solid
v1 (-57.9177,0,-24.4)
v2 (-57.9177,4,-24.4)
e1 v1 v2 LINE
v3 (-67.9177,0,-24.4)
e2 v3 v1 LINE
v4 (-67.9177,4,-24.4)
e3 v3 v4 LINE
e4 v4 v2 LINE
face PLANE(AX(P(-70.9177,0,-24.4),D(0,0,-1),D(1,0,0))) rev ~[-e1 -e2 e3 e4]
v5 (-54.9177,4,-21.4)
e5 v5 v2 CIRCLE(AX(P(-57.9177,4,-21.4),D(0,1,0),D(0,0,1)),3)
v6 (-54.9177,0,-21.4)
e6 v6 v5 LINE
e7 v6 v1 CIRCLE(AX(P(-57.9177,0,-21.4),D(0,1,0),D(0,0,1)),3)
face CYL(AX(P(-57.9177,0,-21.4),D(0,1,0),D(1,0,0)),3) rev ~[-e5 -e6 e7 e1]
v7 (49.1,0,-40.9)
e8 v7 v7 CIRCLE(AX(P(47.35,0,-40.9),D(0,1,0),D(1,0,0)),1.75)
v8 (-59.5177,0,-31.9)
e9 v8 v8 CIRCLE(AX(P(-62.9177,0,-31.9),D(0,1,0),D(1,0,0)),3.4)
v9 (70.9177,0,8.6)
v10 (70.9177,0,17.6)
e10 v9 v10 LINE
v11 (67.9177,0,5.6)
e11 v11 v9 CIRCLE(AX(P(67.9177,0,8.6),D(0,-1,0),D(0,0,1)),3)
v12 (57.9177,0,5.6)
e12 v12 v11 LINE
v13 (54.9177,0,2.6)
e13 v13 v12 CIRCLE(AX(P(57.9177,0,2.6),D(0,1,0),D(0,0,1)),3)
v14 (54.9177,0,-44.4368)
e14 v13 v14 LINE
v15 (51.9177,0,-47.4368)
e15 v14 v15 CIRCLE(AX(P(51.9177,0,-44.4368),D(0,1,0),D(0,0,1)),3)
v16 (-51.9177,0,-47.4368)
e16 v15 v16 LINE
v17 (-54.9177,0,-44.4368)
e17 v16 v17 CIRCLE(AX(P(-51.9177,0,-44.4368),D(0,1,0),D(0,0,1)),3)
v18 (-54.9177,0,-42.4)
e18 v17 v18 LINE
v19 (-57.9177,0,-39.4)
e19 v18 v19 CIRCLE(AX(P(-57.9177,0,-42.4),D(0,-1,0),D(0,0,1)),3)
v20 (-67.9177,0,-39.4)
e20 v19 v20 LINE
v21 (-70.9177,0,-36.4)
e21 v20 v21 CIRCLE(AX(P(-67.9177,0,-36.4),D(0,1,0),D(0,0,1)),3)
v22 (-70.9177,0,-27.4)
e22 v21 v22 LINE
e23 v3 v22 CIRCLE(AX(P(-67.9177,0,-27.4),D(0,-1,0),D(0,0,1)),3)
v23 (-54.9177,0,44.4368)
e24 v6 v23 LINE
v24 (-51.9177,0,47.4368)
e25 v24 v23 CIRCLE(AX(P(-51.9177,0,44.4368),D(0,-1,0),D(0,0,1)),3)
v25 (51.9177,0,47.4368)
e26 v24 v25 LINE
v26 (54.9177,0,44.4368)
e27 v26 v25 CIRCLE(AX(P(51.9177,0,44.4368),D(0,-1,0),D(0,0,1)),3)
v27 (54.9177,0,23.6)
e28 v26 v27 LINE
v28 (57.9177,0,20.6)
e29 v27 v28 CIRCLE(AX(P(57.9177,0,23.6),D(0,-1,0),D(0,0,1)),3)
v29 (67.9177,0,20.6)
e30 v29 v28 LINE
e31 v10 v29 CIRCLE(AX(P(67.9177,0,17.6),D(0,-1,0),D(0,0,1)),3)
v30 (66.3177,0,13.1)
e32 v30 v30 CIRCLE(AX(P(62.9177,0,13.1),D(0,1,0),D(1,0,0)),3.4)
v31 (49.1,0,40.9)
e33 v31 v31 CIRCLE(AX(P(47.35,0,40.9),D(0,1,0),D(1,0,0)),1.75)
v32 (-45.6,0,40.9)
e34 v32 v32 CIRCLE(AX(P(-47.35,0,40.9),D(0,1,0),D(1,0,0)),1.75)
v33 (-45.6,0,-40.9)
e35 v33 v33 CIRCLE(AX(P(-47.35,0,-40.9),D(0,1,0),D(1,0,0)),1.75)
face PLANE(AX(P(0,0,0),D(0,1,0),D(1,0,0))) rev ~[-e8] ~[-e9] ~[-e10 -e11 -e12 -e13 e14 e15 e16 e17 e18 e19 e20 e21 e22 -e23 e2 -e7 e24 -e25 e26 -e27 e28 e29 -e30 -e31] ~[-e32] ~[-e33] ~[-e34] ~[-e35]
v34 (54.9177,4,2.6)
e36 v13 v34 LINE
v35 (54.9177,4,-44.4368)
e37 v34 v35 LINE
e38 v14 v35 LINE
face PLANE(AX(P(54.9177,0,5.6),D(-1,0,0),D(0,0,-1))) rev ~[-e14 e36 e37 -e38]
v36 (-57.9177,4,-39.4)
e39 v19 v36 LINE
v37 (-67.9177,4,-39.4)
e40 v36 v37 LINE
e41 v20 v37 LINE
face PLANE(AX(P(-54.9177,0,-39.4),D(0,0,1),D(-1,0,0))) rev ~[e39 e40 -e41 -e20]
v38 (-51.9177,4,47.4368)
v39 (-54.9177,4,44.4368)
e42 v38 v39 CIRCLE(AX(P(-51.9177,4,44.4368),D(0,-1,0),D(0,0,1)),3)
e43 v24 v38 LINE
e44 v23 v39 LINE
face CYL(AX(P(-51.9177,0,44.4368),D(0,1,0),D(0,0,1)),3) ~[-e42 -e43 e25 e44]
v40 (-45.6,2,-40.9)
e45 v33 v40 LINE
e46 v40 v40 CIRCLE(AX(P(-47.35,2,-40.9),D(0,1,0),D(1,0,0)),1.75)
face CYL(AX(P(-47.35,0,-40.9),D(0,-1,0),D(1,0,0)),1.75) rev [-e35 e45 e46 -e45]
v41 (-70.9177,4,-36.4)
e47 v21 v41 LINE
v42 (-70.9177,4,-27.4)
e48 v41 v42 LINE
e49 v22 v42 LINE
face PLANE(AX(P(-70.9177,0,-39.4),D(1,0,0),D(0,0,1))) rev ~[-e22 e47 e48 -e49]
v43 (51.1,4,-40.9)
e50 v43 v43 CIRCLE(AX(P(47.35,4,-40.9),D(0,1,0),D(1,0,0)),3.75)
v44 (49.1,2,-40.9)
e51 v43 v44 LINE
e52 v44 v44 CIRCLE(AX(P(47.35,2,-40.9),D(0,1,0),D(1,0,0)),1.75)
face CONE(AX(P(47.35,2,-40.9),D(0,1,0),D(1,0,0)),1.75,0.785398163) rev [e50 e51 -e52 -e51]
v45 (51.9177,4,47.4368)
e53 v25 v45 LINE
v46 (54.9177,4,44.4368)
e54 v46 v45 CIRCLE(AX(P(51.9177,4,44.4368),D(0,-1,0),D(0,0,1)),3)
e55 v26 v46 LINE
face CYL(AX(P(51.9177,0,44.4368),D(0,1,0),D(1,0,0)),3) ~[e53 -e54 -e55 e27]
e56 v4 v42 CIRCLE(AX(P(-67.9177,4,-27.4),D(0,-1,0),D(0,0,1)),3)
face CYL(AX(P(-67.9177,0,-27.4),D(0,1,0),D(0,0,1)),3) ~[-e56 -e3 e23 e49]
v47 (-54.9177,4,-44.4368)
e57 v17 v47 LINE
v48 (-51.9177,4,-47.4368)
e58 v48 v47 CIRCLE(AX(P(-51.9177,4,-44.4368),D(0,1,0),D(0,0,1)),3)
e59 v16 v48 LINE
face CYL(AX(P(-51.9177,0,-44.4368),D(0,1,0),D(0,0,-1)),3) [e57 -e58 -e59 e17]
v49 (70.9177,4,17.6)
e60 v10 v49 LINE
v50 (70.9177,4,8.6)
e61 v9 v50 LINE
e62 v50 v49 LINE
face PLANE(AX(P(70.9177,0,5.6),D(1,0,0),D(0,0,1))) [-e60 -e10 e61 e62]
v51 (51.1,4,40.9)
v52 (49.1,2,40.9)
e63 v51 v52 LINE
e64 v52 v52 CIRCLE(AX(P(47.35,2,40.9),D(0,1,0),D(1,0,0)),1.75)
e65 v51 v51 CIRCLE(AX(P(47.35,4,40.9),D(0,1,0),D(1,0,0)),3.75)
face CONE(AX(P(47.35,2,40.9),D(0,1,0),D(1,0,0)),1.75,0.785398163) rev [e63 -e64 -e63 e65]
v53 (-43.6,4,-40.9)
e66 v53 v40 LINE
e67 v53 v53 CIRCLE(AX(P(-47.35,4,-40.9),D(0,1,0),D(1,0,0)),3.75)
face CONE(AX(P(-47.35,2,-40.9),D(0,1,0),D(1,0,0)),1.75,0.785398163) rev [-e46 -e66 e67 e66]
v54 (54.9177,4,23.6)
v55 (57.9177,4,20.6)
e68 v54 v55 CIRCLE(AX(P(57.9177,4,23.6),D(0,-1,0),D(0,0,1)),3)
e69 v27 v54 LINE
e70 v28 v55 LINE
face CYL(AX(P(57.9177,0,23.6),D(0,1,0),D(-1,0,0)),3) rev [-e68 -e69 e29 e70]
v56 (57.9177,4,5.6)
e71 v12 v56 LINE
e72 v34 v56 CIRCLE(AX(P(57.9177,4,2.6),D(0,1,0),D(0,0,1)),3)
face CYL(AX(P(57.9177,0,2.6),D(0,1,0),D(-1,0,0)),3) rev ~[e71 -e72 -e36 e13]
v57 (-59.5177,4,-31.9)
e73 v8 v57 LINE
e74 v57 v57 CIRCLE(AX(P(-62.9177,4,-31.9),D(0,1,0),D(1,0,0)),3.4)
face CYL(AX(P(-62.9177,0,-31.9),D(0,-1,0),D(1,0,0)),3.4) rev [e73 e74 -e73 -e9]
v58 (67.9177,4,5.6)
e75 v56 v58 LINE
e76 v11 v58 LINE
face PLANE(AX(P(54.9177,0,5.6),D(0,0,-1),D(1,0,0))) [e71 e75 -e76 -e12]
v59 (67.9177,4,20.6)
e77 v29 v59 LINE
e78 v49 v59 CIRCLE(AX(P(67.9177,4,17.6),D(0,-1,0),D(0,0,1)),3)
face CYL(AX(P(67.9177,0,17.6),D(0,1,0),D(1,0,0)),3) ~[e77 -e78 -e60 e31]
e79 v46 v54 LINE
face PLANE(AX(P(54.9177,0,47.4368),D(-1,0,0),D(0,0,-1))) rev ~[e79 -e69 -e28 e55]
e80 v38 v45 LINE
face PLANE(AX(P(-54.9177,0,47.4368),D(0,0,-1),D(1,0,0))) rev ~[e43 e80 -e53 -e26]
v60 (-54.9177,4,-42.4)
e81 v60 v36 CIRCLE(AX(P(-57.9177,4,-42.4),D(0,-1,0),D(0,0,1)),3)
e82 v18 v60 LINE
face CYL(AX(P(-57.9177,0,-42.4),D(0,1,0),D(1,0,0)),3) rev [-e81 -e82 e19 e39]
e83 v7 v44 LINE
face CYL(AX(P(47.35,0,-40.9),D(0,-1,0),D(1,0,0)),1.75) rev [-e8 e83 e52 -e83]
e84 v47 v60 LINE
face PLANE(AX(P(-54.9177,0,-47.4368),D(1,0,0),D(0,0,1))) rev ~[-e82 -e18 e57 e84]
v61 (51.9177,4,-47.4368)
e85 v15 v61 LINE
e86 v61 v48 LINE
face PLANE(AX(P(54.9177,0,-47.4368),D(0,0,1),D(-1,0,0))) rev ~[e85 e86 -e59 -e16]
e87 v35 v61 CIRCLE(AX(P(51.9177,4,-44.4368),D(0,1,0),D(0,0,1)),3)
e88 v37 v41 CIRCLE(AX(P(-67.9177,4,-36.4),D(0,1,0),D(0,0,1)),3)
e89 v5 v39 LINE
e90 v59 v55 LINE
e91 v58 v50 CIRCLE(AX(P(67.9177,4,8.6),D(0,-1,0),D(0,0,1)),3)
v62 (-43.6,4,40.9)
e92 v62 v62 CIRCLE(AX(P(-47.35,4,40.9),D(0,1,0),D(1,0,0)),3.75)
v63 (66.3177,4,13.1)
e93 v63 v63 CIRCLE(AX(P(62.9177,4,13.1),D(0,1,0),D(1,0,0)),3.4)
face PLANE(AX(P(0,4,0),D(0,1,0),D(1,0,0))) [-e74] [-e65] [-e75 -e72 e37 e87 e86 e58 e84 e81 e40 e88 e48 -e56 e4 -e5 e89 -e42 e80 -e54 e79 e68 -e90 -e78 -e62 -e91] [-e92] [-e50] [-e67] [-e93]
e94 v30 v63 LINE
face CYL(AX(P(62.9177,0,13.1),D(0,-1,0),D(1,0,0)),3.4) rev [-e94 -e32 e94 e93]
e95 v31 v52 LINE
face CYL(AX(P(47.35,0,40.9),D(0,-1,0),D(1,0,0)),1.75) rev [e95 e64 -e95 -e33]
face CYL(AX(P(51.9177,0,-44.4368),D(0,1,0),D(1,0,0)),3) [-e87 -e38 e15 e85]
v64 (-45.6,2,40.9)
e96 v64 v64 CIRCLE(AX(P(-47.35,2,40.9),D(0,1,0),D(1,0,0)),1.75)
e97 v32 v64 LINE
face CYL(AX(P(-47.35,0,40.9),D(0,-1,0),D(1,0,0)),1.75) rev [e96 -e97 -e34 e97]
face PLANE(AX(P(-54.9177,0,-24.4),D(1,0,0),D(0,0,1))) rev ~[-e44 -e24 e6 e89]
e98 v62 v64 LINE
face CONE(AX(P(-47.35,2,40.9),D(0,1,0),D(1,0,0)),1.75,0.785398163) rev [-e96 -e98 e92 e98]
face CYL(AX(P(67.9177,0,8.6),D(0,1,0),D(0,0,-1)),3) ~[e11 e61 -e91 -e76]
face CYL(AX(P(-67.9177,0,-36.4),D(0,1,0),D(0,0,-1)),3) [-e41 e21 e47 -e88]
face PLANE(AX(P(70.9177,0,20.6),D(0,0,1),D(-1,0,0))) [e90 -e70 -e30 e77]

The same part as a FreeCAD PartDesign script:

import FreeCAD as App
import Part
import Sketcher


def edges_at(feature, points):
    """Names of the edges that pass closest to the given points."""
    edges = feature.Shape.Edges
    near = lambda p: min(range(len(edges)), key=lambda i: edges[i].distToShape(Part.Vertex(*p))[0])
    return sorted({f"Edge{near(p) + 1}" for p in points})

doc = App.newDocument("Part")
body = doc.addObject("PartDesign::Body", "Body")

# Sketch on XZ plane
sketch1 = body.newObject("Sketcher::SketchObject", "Sketch")
sketch1.AttachmentSupport = (doc.getObject("XZ_Plane"), [""])
sketch1.MapMode = "FlatFace"
sketch1.addGeometry(Part.LineSegment(App.Vector(54.9, 5.6, 0), App.Vector(54.9, -47.4, 0)), False)
sketch1.addGeometry(Part.LineSegment(App.Vector(54.9, -47.4, 0), App.Vector(-54.9, -47.4, 0)), False)
sketch1.addGeometry(Part.LineSegment(App.Vector(-54.9, -47.4, 0), App.Vector(-54.9, -39.4, 0)), False)
sketch1.addGeometry(Part.LineSegment(App.Vector(-54.9, -39.4, 0), App.Vector(-70.9, -39.4, 0)), False)
sketch1.addGeometry(Part.LineSegment(App.Vector(-70.9, -39.4, 0), App.Vector(-70.9, -24.4, 0)), False)
sketch1.addGeometry(Part.LineSegment(App.Vector(-70.9, -24.4, 0), App.Vector(-54.9, -24.4, 0)), False)
sketch1.addGeometry(Part.LineSegment(App.Vector(-54.9, -24.4, 0), App.Vector(-54.9, 47.4, 0)), False)
sketch1.addGeometry(Part.LineSegment(App.Vector(-54.9, 47.4, 0), App.Vector(54.9, 47.4, 0)), False)
sketch1.addGeometry(Part.LineSegment(App.Vector(54.9, 47.4, 0), App.Vector(54.9, 20.6, 0)), False)
sketch1.addGeometry(Part.LineSegment(App.Vector(54.9, 20.6, 0), App.Vector(70.9, 20.6, 0)), False)
sketch1.addGeometry(Part.LineSegment(App.Vector(70.9, 20.6, 0), App.Vector(70.9, 5.6, 0)), False)
sketch1.addGeometry(Part.LineSegment(App.Vector(70.9, 5.6, 0), App.Vector(54.9, 5.6, 0)), False)
sketch1.addGeometry(Part.Circle(App.Vector(-47.4, 40.9, 0), App.Vector(0, 0, 1), 1.8), False)
sketch1.addGeometry(Part.Circle(App.Vector(47.4, 40.9, 0), App.Vector(0, 0, 1), 1.8), False)
sketch1.addGeometry(Part.Circle(App.Vector(-47.4, -40.9, 0), App.Vector(0, 0, 1), 1.8), False)
sketch1.addGeometry(Part.Circle(App.Vector(47.4, -40.9, 0), App.Vector(0, 0, 1), 1.8), False)
sketch1.addGeometry(Part.Circle(App.Vector(62.9, 13.1, 0), App.Vector(0, 0, 1), 3.4), False)
sketch1.addGeometry(Part.Circle(App.Vector(-62.9, -31.9, 0), App.Vector(0, 0, 1), 3.4), False)
sketch1.addConstraint(Sketcher.Constraint("Coincident", 0, 2, 1, 1))
sketch1.addConstraint(Sketcher.Constraint("Coincident", 1, 2, 2, 1))
sketch1.addConstraint(Sketcher.Constraint("Coincident", 2, 2, 3, 1))
sketch1.addConstraint(Sketcher.Constraint("Coincident", 3, 2, 4, 1))
sketch1.addConstraint(Sketcher.Constraint("Coincident", 4, 2, 5, 1))
sketch1.addConstraint(Sketcher.Constraint("Coincident", 5, 2, 6, 1))
sketch1.addConstraint(Sketcher.Constraint("Coincident", 6, 2, 7, 1))
sketch1.addConstraint(Sketcher.Constraint("Coincident", 7, 2, 8, 1))
sketch1.addConstraint(Sketcher.Constraint("Coincident", 8, 2, 9, 1))
sketch1.addConstraint(Sketcher.Constraint("Coincident", 9, 2, 10, 1))
sketch1.addConstraint(Sketcher.Constraint("Coincident", 10, 2, 11, 1))
sketch1.addConstraint(Sketcher.Constraint("Coincident", 11, 2, 0, 1))
sketch1.addConstraint(Sketcher.Constraint("Vertical", 0))
sketch1.addConstraint(Sketcher.Constraint("Horizontal", 1))
sketch1.addConstraint(Sketcher.Constraint("Vertical", 2))
sketch1.addConstraint(Sketcher.Constraint("Horizontal", 3))
sketch1.addConstraint(Sketcher.Constraint("Vertical", 4))
sketch1.addConstraint(Sketcher.Constraint("Horizontal", 5))
sketch1.addConstraint(Sketcher.Constraint("Vertical", 6))
sketch1.addConstraint(Sketcher.Constraint("Horizontal", 7))
sketch1.addConstraint(Sketcher.Constraint("Vertical", 8))
sketch1.addConstraint(Sketcher.Constraint("Horizontal", 9))
sketch1.addConstraint(Sketcher.Constraint("Vertical", 10))
sketch1.addConstraint(Sketcher.Constraint("Horizontal", 11))
sketch1.addConstraint(Sketcher.Constraint("Equal", 12, 13))
sketch1.addConstraint(Sketcher.Constraint("Equal", 13, 14))
sketch1.addConstraint(Sketcher.Constraint("Equal", 14, 15))
sketch1.addConstraint(Sketcher.Constraint("Equal", 16, 17))
sketch1.addConstraint(Sketcher.Constraint("Symmetric", 13, 3, 14, 3, -1, 1))
sketch1.addConstraint(Sketcher.Constraint("Symmetric", 12, 3, 15, 3, -1, 1))
sketch1.addConstraint(Sketcher.Constraint("Symmetric", 0, 2, 6, 2, -1, 1))
sketch1.addConstraint(Sketcher.Constraint("Symmetric", 12, 3, 13, 3, -2))
sketch1.addConstraint(Sketcher.Constraint("Vertical", 2, 2, 5, 2))
sketch1.addConstraint(Sketcher.Constraint("Vertical", 0, 2, 7, 2))
sketch1.addConstraint(Sketcher.Constraint("Equal", 5, 9))
sketch1.addConstraint(Sketcher.Constraint("Equal", 4, 10))
sketch1.addConstraint(Sketcher.Constraint("Diameter", 12, 3.5))
sketch1.addConstraint(Sketcher.Constraint("Diameter", 16, 6.8))
sketch1.addConstraint(Sketcher.Constraint("DistanceX", 3, 2, 3, 1, 16.0))
sketch1.addConstraint(Sketcher.Constraint("DistanceY", 4, 1, 4, 2, 15.0))
sketch1.addConstraint(Sketcher.Constraint("DistanceY", 14, 3, 17, 3, 9.0))
sketch1.addConstraint(Sketcher.Constraint("DistanceY", 17, 3, 16, 3, 45.0))
sketch1.addConstraint(Sketcher.Constraint("DistanceX", 0, 2, 16, 3, 8.0))
sketch1.addConstraint(Sketcher.Constraint("DistanceX", 17, 3, 1, 2, 8.0))
sketch1.addConstraint(Sketcher.Constraint("DistanceX", 12, 3, 13, 3, 94.7))
sketch1.addConstraint(Sketcher.Constraint("DistanceY", 14, 3, 12, 3, 81.8))
sketch1.addConstraint(Sketcher.Constraint("DistanceY", 2, 2, -1, 1, 39.4))
sketch1.addConstraint(Sketcher.Constraint("DistanceY", -1, 1, 8, 2, 20.6))
sketch1.addConstraint(Sketcher.Constraint("DistanceX", 1, 2, 1, 1, 109.8354))
sketch1.addConstraint(Sketcher.Constraint("DistanceY", 0, 2, 0, 1, 53.0368))
pad1 = body.newObject("PartDesign::Pad", "Pad")
pad1.Profile = sketch1
pad1.Length = 4
pad1.Reversed = True
doc.recompute()

fillet = body.newObject("PartDesign::Fillet", "Fillet")
fillet.Base = (pad1, edges_at(pad1, [
    (-70.918, 2, -24.4),
    (-70.918, 2, -39.4),
    (-54.918, 2, -39.4),
    (-54.918, 2, -47.437),
    (-54.918, 2, 47.437),
    (-54.918, 2, -24.4),
    (54.918, 2, 47.437),
    (54.918, 2, 20.6),
    (70.918, 2, 20.6),
    (70.918, 2, 5.6),
    (54.918, 2, 5.6),
    (54.918, 2, -47.437),
]))
fillet.Radius = 3
doc.recompute()

chamfer = body.newObject("PartDesign::Chamfer", "Chamfer")
chamfer.Base = (fillet, edges_at(fillet, [
    (45.718, 4, 40.267),
    (-48.982, 4, 40.267),
    (-48.982, 4, -41.533),
    (45.718, 4, -41.533),
]))
chamfer.Size = 2

doc.recompute()
